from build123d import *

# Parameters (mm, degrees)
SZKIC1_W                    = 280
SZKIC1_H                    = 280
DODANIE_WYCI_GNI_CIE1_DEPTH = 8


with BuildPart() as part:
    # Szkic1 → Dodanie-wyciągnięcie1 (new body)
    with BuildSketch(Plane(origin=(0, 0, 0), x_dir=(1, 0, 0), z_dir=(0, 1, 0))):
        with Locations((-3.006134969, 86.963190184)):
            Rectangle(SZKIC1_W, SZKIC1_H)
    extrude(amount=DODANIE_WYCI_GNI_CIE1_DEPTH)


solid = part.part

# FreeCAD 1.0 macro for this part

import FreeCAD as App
import Part
import Sketcher
Q = App.Units.Quantity


def add_polygon(sketch, points):
    """Adds a closed chain of lines whose ends are joined by coincident constraints."""
    first, n = sketch.GeometryCount, len(points)
    for a, b in zip(points, points[1:] + points[:1]):
        sketch.addGeometry(Part.LineSegment(App.Vector(*a, 0), App.Vector(*b, 0)), False)
    for i in range(n):
        sketch.addConstraint(Sketcher.Constraint("Coincident", first + i, 2, first + (i + 1) % n, 1))

doc = App.newDocument("Part")
body = doc.addObject("PartDesign::Body", "Body")

# Sketch on XZ plane
sketch1 = doc.addObject("Sketcher::SketchObject", "Sketch")
body.addObject(sketch1)
sketch1.AttachmentSupport = (doc.XZ_Plane, [""])
sketch1.MapMode = "FlatFace"
add_polygon(sketch1, [(-143, -227), (-143, 53), (137, 53), (137, -227)])  # lines 0-3
sketch1.addConstraint(Sketcher.Constraint("Vertical", 0))
sketch1.addConstraint(Sketcher.Constraint("Horizontal", 1))
sketch1.addConstraint(Sketcher.Constraint("Vertical", 2))
sketch1.addConstraint(Sketcher.Constraint("Horizontal", 3))
sketch1.addConstraint(Sketcher.Constraint("Equal", 3, 0))
sketch1.addConstraint(Sketcher.Constraint("DistanceX", 1, 1, 1, 2, Q("280 mm")))
sketch1.addConstraint(Sketcher.Constraint("DistanceY", -1, 1, 0, 2, Q("53.03681 mm")))
sketch1.addConstraint(Sketcher.Constraint("DistanceX", 0, 2, -1, 1, Q("143.006135 mm")))
pad1 = doc.addObject("PartDesign::Pad", "Pad")
body.addObject(pad1)
pad1.Profile = sketch1
pad1.Length = 8
pad1.Reversed = True

doc.recompute()
